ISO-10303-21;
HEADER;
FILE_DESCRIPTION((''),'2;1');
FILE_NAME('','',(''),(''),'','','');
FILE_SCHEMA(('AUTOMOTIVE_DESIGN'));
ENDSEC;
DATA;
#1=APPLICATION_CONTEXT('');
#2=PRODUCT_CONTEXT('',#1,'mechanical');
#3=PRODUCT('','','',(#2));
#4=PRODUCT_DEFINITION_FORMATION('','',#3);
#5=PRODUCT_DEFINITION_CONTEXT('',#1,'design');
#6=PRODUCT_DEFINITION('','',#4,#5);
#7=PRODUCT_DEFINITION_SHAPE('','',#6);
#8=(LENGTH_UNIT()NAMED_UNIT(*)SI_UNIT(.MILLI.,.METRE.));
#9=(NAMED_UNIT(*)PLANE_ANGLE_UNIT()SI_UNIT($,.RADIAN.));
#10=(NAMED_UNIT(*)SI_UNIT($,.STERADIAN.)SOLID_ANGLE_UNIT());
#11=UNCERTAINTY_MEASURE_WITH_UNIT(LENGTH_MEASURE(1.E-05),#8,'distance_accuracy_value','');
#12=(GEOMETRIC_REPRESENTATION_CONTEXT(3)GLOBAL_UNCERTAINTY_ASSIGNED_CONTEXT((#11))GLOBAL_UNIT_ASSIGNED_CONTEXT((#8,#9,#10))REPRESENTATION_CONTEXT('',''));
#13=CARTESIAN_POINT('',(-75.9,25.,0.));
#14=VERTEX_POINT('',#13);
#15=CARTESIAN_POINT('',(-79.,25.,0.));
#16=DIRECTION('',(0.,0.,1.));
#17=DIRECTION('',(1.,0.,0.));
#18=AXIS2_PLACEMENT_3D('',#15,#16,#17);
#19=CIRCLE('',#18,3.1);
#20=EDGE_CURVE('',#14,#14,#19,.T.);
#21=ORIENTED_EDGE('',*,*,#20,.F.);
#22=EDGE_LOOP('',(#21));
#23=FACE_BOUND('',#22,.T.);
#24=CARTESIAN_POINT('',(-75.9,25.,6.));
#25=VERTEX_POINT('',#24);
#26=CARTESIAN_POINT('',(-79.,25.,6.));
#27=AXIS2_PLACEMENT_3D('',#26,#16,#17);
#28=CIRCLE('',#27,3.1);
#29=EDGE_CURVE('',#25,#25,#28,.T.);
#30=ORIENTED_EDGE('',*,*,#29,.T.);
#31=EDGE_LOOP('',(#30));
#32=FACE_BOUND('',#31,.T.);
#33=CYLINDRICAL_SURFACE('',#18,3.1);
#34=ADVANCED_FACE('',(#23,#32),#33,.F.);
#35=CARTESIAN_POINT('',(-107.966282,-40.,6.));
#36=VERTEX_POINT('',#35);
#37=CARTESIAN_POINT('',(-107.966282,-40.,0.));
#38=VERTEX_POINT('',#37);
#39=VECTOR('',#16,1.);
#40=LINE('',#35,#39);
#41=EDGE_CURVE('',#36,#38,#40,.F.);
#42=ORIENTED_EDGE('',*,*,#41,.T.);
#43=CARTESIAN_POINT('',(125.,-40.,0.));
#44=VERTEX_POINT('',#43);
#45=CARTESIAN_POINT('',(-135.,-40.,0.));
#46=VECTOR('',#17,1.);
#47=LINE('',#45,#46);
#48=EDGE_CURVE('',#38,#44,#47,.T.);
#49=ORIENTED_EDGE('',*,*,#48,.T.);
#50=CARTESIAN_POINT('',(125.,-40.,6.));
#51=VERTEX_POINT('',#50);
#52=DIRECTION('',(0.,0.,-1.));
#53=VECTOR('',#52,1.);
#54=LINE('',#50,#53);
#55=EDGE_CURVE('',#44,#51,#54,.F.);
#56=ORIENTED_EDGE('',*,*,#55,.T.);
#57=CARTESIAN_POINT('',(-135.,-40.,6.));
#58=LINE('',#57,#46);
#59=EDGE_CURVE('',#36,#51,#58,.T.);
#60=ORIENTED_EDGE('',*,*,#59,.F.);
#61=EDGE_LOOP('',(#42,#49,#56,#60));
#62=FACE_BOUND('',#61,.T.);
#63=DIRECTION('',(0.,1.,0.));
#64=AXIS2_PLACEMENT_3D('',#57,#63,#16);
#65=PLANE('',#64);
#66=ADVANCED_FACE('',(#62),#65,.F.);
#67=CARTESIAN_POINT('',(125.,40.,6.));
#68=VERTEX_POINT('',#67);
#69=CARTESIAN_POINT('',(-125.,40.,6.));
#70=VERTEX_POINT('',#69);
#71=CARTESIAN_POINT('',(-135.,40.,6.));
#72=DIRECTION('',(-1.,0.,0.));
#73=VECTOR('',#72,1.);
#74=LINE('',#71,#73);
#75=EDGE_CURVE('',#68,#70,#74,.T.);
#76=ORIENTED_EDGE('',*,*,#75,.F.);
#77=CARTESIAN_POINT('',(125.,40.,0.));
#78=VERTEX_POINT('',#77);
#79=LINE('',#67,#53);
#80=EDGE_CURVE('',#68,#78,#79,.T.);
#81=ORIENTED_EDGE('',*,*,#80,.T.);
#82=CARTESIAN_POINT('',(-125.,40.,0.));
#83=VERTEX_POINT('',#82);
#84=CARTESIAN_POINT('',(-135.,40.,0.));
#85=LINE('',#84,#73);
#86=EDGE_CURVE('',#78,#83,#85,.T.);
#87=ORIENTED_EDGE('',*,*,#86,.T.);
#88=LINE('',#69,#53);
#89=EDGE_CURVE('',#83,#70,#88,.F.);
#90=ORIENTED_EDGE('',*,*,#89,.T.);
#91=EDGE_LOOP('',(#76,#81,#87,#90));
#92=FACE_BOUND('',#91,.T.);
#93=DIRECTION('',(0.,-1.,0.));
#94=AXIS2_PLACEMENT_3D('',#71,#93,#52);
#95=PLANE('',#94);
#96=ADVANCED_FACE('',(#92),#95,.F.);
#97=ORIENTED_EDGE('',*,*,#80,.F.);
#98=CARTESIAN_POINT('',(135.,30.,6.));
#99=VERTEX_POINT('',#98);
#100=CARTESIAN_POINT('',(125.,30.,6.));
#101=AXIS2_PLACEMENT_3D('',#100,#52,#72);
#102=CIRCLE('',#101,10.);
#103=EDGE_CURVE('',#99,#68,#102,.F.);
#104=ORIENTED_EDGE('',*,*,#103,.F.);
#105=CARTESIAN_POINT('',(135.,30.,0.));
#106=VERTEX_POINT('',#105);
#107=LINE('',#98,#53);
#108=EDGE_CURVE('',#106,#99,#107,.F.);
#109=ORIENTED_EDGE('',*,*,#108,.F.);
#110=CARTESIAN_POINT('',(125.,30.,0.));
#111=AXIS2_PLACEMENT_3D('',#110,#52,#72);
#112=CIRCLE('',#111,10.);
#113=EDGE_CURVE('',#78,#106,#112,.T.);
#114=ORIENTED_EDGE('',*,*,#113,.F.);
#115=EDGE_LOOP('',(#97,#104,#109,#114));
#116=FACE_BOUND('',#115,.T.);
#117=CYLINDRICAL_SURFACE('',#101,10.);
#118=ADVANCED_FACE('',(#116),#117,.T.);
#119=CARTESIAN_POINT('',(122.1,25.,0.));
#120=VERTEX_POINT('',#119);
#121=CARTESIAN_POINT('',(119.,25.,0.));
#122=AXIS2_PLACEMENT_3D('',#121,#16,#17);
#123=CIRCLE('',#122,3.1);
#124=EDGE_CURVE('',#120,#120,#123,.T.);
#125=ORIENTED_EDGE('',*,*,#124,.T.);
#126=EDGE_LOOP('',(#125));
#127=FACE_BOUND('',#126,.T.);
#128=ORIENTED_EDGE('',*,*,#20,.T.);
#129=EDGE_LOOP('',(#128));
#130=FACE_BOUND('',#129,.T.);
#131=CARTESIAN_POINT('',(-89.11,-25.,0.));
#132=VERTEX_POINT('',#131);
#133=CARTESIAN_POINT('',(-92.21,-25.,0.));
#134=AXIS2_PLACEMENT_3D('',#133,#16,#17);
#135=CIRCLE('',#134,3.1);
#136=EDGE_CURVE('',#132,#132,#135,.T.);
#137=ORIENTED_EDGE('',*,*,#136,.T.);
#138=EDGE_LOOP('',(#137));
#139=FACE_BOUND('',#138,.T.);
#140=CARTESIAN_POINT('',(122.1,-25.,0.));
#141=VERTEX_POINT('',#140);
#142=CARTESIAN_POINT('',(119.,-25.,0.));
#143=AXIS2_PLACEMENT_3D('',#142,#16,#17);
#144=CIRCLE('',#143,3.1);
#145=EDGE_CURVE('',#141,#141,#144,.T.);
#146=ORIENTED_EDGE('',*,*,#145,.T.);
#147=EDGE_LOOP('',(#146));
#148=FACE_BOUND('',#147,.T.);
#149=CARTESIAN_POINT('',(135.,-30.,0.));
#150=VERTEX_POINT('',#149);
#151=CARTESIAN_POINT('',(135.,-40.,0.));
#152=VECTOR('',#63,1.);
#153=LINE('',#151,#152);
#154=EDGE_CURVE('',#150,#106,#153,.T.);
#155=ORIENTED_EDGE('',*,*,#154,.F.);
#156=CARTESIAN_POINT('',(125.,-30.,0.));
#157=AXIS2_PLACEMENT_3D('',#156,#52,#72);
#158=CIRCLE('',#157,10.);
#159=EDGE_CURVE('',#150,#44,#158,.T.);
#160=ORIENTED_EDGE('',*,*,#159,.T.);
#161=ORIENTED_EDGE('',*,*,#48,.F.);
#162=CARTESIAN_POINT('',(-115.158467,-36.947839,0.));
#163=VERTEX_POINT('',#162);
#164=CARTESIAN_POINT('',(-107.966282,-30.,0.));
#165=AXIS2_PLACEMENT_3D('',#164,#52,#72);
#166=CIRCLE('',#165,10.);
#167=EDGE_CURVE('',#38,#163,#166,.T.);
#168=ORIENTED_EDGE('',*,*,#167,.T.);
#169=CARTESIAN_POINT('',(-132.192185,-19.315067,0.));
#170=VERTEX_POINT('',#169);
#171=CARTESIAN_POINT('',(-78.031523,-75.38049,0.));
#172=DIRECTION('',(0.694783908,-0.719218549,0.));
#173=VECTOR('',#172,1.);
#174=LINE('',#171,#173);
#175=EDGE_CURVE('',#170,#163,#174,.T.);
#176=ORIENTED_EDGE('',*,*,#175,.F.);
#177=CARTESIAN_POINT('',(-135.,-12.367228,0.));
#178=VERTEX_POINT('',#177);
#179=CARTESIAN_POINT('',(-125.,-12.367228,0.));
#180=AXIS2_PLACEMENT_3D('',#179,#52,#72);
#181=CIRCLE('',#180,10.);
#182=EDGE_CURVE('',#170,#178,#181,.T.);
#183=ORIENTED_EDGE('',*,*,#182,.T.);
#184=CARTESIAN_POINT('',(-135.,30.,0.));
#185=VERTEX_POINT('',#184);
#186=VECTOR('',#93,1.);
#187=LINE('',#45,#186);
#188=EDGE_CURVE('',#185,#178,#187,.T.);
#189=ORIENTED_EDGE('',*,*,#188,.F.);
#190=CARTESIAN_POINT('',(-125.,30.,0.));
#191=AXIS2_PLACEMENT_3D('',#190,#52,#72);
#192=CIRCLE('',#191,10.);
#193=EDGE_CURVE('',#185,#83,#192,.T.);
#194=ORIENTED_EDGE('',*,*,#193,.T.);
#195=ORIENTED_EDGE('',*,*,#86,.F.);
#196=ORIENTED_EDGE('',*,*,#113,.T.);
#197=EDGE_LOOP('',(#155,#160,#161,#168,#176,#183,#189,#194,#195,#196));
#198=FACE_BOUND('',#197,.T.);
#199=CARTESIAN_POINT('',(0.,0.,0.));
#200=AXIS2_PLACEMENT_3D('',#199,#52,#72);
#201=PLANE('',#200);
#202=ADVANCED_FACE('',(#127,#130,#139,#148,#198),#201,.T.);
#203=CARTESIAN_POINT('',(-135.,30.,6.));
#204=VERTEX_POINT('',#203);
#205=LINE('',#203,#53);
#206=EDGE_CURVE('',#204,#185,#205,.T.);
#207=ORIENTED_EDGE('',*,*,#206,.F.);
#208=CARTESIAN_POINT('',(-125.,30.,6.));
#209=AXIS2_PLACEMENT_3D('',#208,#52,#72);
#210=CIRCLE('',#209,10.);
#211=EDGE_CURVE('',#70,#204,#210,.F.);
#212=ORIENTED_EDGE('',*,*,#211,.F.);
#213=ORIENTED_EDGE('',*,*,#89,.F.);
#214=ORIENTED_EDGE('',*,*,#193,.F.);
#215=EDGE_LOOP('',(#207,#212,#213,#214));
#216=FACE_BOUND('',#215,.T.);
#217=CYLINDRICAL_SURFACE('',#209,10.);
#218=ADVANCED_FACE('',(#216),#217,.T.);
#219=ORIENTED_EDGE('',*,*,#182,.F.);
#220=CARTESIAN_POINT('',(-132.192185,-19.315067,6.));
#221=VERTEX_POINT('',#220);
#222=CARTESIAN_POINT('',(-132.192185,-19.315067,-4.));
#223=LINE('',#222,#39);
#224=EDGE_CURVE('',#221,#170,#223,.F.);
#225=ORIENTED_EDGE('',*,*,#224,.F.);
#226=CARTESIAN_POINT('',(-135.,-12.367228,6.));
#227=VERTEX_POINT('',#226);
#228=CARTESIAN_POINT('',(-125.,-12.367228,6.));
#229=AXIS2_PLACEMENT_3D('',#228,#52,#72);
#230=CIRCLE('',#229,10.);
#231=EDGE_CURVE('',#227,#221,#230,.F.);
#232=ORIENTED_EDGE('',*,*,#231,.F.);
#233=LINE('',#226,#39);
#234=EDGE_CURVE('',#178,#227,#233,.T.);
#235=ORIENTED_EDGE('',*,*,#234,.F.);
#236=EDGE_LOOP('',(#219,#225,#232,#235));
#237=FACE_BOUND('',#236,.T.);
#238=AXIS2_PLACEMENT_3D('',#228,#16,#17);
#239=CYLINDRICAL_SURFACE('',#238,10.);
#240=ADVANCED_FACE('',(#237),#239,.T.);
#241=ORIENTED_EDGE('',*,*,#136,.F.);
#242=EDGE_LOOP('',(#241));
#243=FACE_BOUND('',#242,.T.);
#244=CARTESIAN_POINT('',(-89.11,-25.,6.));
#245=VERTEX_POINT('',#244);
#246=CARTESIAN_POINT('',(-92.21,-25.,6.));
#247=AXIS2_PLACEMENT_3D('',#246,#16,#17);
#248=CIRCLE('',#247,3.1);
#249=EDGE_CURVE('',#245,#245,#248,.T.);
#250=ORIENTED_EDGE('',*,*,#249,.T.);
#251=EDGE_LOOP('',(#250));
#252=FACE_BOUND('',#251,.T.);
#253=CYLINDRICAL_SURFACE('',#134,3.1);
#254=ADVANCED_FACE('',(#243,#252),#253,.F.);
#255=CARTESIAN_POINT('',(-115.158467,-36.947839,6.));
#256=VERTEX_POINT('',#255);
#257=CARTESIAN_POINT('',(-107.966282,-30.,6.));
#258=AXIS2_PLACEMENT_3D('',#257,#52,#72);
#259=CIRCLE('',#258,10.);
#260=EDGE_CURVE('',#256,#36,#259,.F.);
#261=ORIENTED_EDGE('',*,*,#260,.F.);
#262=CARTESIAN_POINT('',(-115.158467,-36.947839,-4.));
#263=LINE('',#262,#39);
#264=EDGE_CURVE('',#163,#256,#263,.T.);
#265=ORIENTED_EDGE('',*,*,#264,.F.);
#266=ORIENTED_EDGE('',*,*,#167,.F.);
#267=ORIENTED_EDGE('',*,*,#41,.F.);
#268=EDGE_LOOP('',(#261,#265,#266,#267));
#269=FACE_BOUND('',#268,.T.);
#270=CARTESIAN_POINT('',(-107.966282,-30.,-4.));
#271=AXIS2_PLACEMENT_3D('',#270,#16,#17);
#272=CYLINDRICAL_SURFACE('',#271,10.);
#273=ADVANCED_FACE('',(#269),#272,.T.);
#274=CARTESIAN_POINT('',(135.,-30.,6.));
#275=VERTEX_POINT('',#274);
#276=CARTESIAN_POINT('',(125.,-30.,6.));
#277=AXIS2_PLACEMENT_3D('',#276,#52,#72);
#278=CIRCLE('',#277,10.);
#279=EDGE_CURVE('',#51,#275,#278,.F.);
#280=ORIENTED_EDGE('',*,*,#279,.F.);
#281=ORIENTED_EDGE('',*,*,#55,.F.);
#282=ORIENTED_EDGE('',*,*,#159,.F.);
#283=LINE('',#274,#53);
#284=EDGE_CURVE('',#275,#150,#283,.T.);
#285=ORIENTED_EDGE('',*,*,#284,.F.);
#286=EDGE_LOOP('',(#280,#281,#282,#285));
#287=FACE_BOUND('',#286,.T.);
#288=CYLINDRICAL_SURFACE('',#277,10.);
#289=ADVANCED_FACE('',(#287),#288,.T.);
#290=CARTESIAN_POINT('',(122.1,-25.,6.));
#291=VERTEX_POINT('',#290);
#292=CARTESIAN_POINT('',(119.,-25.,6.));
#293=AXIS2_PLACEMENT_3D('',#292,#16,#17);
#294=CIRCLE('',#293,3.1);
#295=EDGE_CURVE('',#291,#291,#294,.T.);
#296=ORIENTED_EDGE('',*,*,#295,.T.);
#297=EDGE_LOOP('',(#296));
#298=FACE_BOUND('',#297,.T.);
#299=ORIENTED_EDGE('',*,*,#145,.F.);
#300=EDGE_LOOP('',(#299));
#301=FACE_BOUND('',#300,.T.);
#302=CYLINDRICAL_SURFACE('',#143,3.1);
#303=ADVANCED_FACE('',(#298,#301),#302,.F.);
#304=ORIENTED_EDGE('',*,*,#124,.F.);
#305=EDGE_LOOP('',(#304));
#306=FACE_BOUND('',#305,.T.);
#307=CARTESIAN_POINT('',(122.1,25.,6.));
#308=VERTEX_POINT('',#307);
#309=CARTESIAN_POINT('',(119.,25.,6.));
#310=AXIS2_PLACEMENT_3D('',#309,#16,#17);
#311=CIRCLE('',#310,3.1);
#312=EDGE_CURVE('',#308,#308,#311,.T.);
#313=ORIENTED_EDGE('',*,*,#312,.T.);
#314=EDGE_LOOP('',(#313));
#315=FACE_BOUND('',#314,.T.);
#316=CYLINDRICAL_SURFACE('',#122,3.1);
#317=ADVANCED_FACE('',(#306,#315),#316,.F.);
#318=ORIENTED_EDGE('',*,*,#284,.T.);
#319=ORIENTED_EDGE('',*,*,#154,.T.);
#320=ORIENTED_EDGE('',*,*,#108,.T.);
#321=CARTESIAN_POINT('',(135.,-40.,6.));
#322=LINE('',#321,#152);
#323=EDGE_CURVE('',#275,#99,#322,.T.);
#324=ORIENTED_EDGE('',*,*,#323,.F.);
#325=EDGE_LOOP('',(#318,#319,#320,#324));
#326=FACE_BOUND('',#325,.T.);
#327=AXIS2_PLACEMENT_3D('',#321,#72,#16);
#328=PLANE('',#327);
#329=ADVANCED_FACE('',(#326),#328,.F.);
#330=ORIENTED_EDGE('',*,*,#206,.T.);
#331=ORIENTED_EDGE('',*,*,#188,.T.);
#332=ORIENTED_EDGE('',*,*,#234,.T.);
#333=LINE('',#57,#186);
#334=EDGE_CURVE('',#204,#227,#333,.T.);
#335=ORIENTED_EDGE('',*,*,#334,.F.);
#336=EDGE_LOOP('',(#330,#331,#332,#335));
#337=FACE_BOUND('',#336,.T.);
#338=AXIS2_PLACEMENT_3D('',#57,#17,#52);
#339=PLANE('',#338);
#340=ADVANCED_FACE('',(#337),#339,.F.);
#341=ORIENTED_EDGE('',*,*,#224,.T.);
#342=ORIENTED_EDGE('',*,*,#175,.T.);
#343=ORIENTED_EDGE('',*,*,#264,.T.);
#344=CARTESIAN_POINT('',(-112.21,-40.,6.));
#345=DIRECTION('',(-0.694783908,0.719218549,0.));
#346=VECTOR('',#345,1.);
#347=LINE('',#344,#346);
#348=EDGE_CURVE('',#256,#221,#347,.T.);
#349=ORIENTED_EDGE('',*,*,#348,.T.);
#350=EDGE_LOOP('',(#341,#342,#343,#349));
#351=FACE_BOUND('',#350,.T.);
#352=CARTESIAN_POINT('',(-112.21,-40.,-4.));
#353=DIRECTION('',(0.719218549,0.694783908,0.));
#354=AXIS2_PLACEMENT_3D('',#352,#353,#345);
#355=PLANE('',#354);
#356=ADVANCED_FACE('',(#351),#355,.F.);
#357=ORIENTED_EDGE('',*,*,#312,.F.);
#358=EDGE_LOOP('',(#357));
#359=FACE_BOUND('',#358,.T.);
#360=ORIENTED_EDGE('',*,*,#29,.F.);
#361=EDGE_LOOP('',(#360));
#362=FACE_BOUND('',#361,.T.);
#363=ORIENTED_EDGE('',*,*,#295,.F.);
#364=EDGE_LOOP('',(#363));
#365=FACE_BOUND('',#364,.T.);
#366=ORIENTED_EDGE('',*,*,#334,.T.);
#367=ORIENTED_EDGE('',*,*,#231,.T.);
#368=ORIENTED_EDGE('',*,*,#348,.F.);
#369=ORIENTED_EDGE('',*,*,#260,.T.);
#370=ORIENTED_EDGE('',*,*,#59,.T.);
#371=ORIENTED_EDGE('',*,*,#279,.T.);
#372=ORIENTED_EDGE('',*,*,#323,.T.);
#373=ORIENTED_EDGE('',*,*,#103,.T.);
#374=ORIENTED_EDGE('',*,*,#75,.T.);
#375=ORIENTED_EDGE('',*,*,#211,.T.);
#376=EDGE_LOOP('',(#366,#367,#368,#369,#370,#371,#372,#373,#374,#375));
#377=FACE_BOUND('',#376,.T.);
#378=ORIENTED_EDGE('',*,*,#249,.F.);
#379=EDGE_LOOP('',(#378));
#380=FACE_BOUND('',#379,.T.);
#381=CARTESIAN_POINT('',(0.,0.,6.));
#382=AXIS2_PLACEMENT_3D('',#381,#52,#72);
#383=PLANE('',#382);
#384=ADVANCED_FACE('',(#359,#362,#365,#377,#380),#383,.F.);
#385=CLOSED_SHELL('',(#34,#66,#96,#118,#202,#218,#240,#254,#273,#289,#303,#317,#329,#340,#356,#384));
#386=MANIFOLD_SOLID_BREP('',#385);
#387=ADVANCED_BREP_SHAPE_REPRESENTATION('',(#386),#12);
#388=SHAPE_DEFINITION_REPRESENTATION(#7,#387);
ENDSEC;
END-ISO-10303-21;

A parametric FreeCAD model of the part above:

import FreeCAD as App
import Part
import Sketcher

V = App.Vector
Q = App.Units.Quantity


def edges_at(feature, points):
    """Names of the edges that pass closest to the given points."""
    edges = feature.Shape.Edges
    near = lambda p: min(range(len(edges)), key=lambda i: edges[i].distToShape(Part.Vertex(*p))[0])
    return sorted({f"Edge{near(p) + 1}" for p in points})


def add_polygon(sketch, points):
    """Adds a closed chain of lines whose ends are joined by coincident constraints."""
    first, n = sketch.GeometryCount, len(points)
    for a, b in zip(points, points[1:] + points[:1]):
        sketch.addGeometry(Part.LineSegment(App.Vector(*a, 0), App.Vector(*b, 0)), False)
    for i in range(n):
        sketch.addConstraint(Sketcher.Constraint("Coincident", first + i, 2, first + (i + 1) % n, 1))

doc = App.newDocument("Part")
body = doc.addObject("PartDesign::Body", "Body")

# Sketch on XY plane
sketch1 = doc.addObject("Sketcher::SketchObject", "Sketch")
body.addObject(sketch1)
sketch1.AttachmentSupport = (doc.XY_Plane, [""])
sketch1.MapMode = "FlatFace"
add_polygon(sketch1, [(-135, 40), (-135, -40), (135, -40), (135, 40)])  # lines 0-3
sketch1.addConstraint([
    Sketcher.Constraint("Vertical", 0),
    Sketcher.Constraint("Horizontal", 1),
    Sketcher.Constraint("Vertical", 2),
    Sketcher.Constraint("Horizontal", 3),
    Sketcher.Constraint("Symmetric", 0, 2, 2, 2, -1, 1),
    Sketcher.Constraint("DistanceX", 1, 1, 1, 2, 270.0),
    Sketcher.Constraint("DistanceY", 0, 2, 0, 1, 80.0),
])
pad1 = doc.addObject("PartDesign::Pad", "Pad")
body.addObject(pad1)
pad1.Profile = sketch1
pad1.Length = 6

# Sketch on XY plane
sketch2 = doc.addObject("Sketcher::SketchObject", "Sketch001")
body.addObject(sketch2)
sketch2.AttachmentSupport = (doc.XY_Plane, [""])
sketch2.MapMode = "FlatFace"
sketch2.AttachmentOffset = App.Placement(V(0, 0, 6), App.Rotation())
sketch2.addGeometry([
    Part.Circle(V(-79, 25, 0), V(0, 0, 1), 3.1),
    Part.Circle(V(119, 25, 0), V(0, 0, 1), 3.1),
    Part.Circle(V(119, -25, 0), V(0, 0, 1), 3.1),
    Part.Circle(V(-92.2, -25, 0), V(0, 0, 1), 3.1),
], False)
sketch2.addConstraint([
    Sketcher.Constraint("Equal", 0, 1),
    Sketcher.Constraint("Equal", 1, 2),
    Sketcher.Constraint("Equal", 2, 3),
    Sketcher.Constraint("Symmetric", 1, 3, 2, 3, -1),
    Sketcher.Constraint("Horizontal", 0, 3, 1, 3),
    Sketcher.Constraint("Horizontal", 2, 3, 3, 3),
    Sketcher.Constraint("Diameter", 0, 6.2),
    Sketcher.Constraint("DistanceX", 0, 3, -1, 1, 79.0),
    Sketcher.Constraint("DistanceY", -1, 1, 0, 3, 25.0),
    Sketcher.Constraint("DistanceX", -1, 1, 1, 3, 119.0),
    Sketcher.Constraint("DistanceX", 3, 3, -1, 1, 92.21),
])
pocket1 = doc.addObject("PartDesign::Pocket", "Pocket")
body.addObject(pocket1)
pocket1.Profile = sketch2
pocket1.Type = "ThroughAll"
doc.recompute()

fillet = doc.addObject("PartDesign::Fillet", "Fillet")
body.addObject(fillet)
fillet.Base = (pocket1, edges_at(pocket1, [
    (135, -40, 3),
    (-135, -40, 3),
    (-135, 40, 3),
    (135, 40, 3),
]))
fillet.Radius = 10

# Sketch on XY plane
sketch3 = doc.addObject("Sketcher::SketchObject", "Sketch002")
body.addObject(sketch3)
sketch3.AttachmentSupport = (doc.XY_Plane, [""])
sketch3.MapMode = "FlatFace"
sketch3.AttachmentOffset = App.Placement(V(0, 0, 6), App.Rotation())
add_polygon(sketch3, [(-112, -40), (-154, 3), (-156, -57), (-112, -58)])  # lines 0-3
sketch3.addConstraint([
    Sketcher.Constraint("Vertical", 3),
    Sketcher.Constraint("Perpendicular", 1, 2),
    Sketcher.Constraint("DistanceY", 3, 2, -1, 1, 40.0),
    Sketcher.Constraint("Angle", 0, Q("134.01 deg")),
    Sketcher.Constraint("DistanceX", 2, 2, -1, 1, 112.21),
    Sketcher.Constraint("Distance", 1, 60.060709),
    Sketcher.Constraint("DistanceY", 3, 1, 3, 2, 17.992673),
    Sketcher.Constraint("DistanceY", 1, 2, -1, 1, 56.555389),
])
pocket2 = doc.addObject("PartDesign::Pocket", "Pocket001")
body.addObject(pocket2)
pocket2.Profile = sketch3
pocket2.Length = 10
doc.recompute()

fillet2 = doc.addObject("PartDesign::Fillet", "Fillet001")
body.addObject(fillet2)
fillet2.Base = (pocket2, edges_at(pocket2, [(-135, -16.409, 3), (-112.21, -40, 3)]))
fillet2.Radius = 10

doc.recompute()
